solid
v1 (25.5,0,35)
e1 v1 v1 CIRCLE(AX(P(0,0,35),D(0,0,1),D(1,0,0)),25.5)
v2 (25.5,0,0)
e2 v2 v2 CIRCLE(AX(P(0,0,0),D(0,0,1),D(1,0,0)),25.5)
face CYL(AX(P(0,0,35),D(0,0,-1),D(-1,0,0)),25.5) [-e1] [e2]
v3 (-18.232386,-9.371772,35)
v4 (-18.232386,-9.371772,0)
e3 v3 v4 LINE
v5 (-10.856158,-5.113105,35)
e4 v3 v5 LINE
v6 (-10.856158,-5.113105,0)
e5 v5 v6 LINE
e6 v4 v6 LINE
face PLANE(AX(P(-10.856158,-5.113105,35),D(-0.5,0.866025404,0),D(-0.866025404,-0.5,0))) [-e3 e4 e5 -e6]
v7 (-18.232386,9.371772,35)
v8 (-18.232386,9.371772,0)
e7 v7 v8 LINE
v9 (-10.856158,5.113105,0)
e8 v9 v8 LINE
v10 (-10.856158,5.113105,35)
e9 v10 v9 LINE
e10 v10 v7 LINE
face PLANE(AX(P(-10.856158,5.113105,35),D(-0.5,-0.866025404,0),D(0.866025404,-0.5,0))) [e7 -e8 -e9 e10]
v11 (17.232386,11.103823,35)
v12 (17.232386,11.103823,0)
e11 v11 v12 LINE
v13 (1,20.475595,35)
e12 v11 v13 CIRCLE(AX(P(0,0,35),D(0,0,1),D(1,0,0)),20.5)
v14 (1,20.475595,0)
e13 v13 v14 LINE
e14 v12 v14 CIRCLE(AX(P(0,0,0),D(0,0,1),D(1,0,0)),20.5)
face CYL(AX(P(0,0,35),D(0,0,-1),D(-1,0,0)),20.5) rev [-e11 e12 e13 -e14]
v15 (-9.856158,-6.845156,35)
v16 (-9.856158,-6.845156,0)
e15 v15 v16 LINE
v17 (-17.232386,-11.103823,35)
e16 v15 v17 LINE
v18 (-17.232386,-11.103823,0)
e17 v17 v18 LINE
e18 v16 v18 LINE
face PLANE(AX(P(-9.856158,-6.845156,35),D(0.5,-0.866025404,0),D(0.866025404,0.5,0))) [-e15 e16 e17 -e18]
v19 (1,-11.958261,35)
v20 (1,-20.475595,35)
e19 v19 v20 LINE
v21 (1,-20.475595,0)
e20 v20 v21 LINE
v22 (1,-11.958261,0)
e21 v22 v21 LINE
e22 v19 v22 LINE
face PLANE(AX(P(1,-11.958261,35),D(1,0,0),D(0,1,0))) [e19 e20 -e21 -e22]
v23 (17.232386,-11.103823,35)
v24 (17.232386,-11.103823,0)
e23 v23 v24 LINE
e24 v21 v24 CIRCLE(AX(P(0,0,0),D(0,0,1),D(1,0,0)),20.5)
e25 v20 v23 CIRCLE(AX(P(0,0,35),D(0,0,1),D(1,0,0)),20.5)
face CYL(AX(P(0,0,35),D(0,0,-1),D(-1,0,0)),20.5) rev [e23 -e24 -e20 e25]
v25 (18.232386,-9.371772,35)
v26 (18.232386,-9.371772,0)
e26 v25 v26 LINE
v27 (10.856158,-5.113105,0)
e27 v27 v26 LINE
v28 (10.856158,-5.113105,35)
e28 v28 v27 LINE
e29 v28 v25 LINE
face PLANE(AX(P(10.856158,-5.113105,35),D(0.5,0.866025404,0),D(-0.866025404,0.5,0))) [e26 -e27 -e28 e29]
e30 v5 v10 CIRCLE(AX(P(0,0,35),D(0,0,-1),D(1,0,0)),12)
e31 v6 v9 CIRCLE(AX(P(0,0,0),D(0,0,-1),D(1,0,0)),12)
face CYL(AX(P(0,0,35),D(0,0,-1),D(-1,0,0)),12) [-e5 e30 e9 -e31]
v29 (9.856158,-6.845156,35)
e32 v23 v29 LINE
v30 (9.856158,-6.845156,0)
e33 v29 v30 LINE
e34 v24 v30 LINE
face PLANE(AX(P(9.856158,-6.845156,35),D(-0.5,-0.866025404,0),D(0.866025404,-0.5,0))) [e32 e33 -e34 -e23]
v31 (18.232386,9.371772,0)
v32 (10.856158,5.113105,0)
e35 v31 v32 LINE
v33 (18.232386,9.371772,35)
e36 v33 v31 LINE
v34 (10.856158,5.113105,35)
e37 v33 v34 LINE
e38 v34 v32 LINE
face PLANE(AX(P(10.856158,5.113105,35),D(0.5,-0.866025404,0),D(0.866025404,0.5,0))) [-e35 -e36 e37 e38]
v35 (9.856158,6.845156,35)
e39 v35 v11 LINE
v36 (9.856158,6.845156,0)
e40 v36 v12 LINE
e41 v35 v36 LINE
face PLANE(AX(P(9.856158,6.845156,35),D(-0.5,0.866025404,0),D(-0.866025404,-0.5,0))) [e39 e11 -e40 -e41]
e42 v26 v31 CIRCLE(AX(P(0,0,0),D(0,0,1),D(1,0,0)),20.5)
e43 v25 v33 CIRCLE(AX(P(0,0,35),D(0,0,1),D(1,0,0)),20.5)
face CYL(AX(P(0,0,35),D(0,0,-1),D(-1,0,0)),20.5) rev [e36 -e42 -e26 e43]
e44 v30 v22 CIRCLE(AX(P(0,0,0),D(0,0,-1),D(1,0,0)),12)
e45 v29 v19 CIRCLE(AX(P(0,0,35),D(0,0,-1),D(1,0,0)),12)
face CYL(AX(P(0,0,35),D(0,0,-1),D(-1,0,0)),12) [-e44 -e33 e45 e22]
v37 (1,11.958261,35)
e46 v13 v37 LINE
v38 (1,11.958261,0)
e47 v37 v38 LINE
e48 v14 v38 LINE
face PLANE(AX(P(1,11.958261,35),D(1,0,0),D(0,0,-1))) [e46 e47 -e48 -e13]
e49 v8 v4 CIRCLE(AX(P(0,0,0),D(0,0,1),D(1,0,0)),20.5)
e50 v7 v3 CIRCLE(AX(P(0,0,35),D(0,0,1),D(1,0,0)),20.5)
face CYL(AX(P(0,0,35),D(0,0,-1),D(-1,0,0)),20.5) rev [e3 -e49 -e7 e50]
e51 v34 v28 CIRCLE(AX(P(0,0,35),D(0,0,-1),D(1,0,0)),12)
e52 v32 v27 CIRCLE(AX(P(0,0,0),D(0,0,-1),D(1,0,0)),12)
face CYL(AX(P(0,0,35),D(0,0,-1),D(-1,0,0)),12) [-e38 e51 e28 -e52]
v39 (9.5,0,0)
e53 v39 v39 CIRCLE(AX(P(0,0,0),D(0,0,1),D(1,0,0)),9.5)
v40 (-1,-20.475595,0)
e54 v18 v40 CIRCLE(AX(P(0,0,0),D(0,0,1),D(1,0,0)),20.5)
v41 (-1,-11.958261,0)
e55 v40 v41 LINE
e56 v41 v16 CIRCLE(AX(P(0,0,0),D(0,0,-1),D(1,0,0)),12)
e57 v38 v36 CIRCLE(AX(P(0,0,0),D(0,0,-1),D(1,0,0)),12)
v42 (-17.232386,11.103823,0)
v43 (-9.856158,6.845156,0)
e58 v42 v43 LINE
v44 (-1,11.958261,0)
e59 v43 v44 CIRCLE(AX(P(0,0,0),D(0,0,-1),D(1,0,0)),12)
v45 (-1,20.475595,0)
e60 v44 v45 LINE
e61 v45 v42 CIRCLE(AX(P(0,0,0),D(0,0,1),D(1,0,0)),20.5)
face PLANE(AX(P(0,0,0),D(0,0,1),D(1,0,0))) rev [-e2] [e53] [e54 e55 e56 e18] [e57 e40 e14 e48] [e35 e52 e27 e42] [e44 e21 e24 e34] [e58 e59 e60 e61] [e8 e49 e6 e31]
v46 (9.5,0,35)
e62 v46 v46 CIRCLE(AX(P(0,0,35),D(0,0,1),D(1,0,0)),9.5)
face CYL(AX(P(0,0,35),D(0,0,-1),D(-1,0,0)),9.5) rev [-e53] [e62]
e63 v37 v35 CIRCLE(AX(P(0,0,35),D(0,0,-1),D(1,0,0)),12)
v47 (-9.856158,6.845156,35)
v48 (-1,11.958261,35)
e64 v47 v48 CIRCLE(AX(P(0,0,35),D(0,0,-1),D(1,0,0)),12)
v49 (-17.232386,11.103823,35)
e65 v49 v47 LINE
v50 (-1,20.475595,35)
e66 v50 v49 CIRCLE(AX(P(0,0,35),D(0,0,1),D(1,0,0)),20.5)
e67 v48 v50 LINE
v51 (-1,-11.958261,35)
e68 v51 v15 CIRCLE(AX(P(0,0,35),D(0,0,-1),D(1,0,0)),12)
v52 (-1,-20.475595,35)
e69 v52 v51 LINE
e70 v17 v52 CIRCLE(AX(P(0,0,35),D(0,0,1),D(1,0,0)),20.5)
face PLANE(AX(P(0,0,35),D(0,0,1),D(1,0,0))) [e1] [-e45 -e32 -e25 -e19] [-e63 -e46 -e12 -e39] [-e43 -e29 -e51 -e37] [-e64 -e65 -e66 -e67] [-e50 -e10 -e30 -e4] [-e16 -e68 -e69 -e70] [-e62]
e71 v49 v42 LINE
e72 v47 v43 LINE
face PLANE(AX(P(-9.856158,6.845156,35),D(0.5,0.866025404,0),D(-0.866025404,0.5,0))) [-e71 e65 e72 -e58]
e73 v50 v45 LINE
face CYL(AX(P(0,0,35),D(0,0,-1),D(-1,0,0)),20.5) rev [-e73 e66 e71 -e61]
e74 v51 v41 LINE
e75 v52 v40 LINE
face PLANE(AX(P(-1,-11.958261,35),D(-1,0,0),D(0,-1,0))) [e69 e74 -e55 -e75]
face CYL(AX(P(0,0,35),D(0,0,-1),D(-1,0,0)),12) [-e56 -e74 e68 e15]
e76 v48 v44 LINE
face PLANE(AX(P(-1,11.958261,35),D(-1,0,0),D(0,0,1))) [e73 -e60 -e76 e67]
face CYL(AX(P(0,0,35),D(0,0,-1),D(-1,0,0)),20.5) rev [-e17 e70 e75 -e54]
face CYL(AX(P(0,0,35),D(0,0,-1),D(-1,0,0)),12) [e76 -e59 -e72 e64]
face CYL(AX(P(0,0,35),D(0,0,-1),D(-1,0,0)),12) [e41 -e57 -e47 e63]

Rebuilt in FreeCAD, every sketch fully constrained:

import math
import FreeCAD as App
import Part
import Sketcher

V = App.Vector
Q = App.Units.Quantity

doc = App.newDocument("Part")
params = doc.addObject("Spreadsheet::Sheet", "Params")
for row, (alias, value) in enumerate([
    ("sketch1_diameter", "51 mm"),
    ("sketch1_diameter2", "19 mm"),
    ("sketch1_radius", "12 mm"),
    ("sketch1_radius2", "20.5 mm"),
    ("pad1_length", "35 mm"),
], start=1):
    params.set(f"A{row}", alias)
    params.set(f"B{row}", "=" + value)
    params.setAlias(f"B{row}", alias)

body = doc.addObject("PartDesign::Body", "Body")

sketch1 = doc.addObject("Sketcher::SketchObject", "Sketch")
body.addObject(sketch1)
sketch1.AttachmentSupport = (doc.XY_Plane, [""])
sketch1.MapMode = "FlatFace"
sketch1.addGeometry([
    Part.Circle(V(0, 0, 0), V(0, 0, 1), 26),
    Part.ArcOfCircle(Part.Circle(V(0, 0, 0), V(0, 0, 1), 12), math.radians(-145), math.radians(-95)),
    Part.LineSegment(V(-1, -12, 0), V(-1, -20, 0)),
    Part.ArcOfCircle(Part.Circle(V(0, 0, 0), V(0, 0, 1), 20), math.radians(-147), math.radians(-93)),
    Part.LineSegment(V(-17, -11, 0), V(-10, -7, 0)),
    Part.ArcOfCircle(Part.Circle(V(0, 0, 0), V(0, 0, 1), 12), math.radians(-85), math.radians(-35)),
    Part.LineSegment(V(10, -7, 0), V(17, -11, 0)),
    Part.ArcOfCircle(Part.Circle(V(0, 0, 0), V(0, 0, 1), 20), math.radians(-87), math.radians(-33)),
    Part.LineSegment(V(1, -20, 0), V(1, -12, 0)),
    Part.ArcOfCircle(Part.Circle(V(0, 0, 0), V(0, 0, 1), 12), math.radians(155), math.radians(205)),
    Part.LineSegment(V(-11, -5, 0), V(-18, -9, 0)),
    Part.ArcOfCircle(Part.Circle(V(0, 0, 0), V(0, 0, 1), 20), math.radians(153), math.radians(207)),
    Part.LineSegment(V(-18, 9, 0), V(-11, 5, 0)),
    Part.LineSegment(V(-1, 20, 0), V(-1, 12, 0)),
    Part.ArcOfCircle(Part.Circle(V(0, 0, 0), V(0, 0, 1), 12), math.radians(95), math.radians(145)),
    Part.LineSegment(V(-10, 7, 0), V(-17, 11, 0)),
    Part.ArcOfCircle(Part.Circle(V(0, 0, 0), V(0, 0, 1), 20), math.radians(93), math.radians(147)),
    Part.Circle(V(0, 0, 0), V(0, 0, 1), 10),
    Part.ArcOfCircle(Part.Circle(V(0, 0, 0), V(0, 0, 1), 12), math.radians(-25), math.radians(25)),
    Part.LineSegment(V(11, 5, 0), V(18, 9, 0)),
    Part.ArcOfCircle(Part.Circle(V(0, 0, 0), V(0, 0, 1), 20), math.radians(-27), math.radians(27)),
    Part.LineSegment(V(18, -9, 0), V(11, -5, 0)),
    Part.LineSegment(V(17, 11, 0), V(10, 7, 0)),
    Part.ArcOfCircle(Part.Circle(V(0, 0, 0), V(0, 0, 1), 12), math.radians(35), math.radians(85)),
    Part.LineSegment(V(1, 12, 0), V(1, 20, 0)),
    Part.ArcOfCircle(Part.Circle(V(0, 0, 0), V(0, 0, 1), 20), math.radians(33), math.radians(87)),
], False)
sketch1.addConstraint([
    Sketcher.Constraint("Coincident", 1, 2, 2, 1),
    Sketcher.Constraint("Coincident", 2, 2, 3, 2),
    Sketcher.Constraint("Coincident", 3, 1, 4, 1),
    Sketcher.Constraint("Coincident", 4, 2, 1, 1),
    Sketcher.Constraint("Coincident", 5, 2, 6, 1),
    Sketcher.Constraint("Coincident", 6, 2, 7, 2),
    Sketcher.Constraint("Coincident", 7, 1, 8, 1),
    Sketcher.Constraint("Coincident", 8, 2, 5, 1),
    Sketcher.Constraint("Coincident", 9, 2, 10, 1),
    Sketcher.Constraint("Coincident", 10, 2, 11, 2),
    Sketcher.Constraint("Coincident", 11, 1, 12, 1),
    Sketcher.Constraint("Coincident", 12, 2, 9, 1),
    Sketcher.Constraint("Coincident", 13, 2, 14, 1),
    Sketcher.Constraint("Coincident", 14, 2, 15, 1),
    Sketcher.Constraint("Coincident", 15, 2, 16, 2),
    Sketcher.Constraint("Coincident", 16, 1, 13, 1),
    Sketcher.Constraint("Coincident", 18, 2, 19, 1),
    Sketcher.Constraint("Coincident", 19, 2, 20, 2),
    Sketcher.Constraint("Coincident", 20, 1, 21, 1),
    Sketcher.Constraint("Coincident", 21, 2, 18, 1),
    Sketcher.Constraint("Coincident", 22, 2, 23, 1),
    Sketcher.Constraint("Coincident", 23, 2, 24, 1),
    Sketcher.Constraint("Coincident", 24, 2, 25, 2),
    Sketcher.Constraint("Coincident", 25, 1, 22, 1),
    Sketcher.Constraint("Vertical", 2),
    Sketcher.Constraint("Vertical", 8),
    Sketcher.Constraint("Vertical", 13),
    Sketcher.Constraint("Vertical", 24),
    Sketcher.Constraint("Coincident", 0, 3, -1, 1),
    Sketcher.Constraint("Coincident", 1, 3, -1, 1),
    Sketcher.Constraint("Coincident", 3, 3, -1, 1),
    Sketcher.Constraint("Coincident", 5, 3, -1, 1),
    Sketcher.Constraint("Coincident", 7, 3, -1, 1),
    Sketcher.Constraint("Coincident", 9, 3, -1, 1),
    Sketcher.Constraint("Coincident", 11, 3, -1, 1),
    Sketcher.Constraint("Coincident", 14, 3, -1, 1),
    Sketcher.Constraint("Coincident", 16, 3, -1, 1),
    Sketcher.Constraint("Coincident", 17, 3, -1, 1),
    Sketcher.Constraint("Coincident", 18, 3, -1, 1),
    Sketcher.Constraint("Coincident", 20, 3, -1, 1),
    Sketcher.Constraint("Coincident", 23, 3, -1, 1),
    Sketcher.Constraint("Coincident", 25, 3, -1, 1),
    Sketcher.Constraint("Equal", 1, 5),
    Sketcher.Constraint("Equal", 3, 7),
    Sketcher.Constraint("Equal", 5, 9),
    Sketcher.Constraint("Equal", 7, 11),
    Sketcher.Constraint("Equal", 9, 14),
    Sketcher.Constraint("Equal", 11, 16),
    Sketcher.Constraint("Equal", 14, 18),
    Sketcher.Constraint("Equal", 16, 20),
    Sketcher.Constraint("Equal", 18, 23),
    Sketcher.Constraint("Equal", 20, 25),
    Sketcher.Constraint("Parallel", 4, 10),
    Sketcher.Constraint("Parallel", 6, 12),
    Sketcher.Constraint("Parallel", 12, 15),
    Sketcher.Constraint("Parallel", 10, 19),
    Sketcher.Constraint("Parallel", 15, 21),
    Sketcher.Constraint("Parallel", 19, 22),
    Sketcher.Constraint("Horizontal", 4, 2, 5, 2),
    Sketcher.Constraint("Horizontal", 3, 1, 6, 2),
    Sketcher.Constraint("Horizontal", 2, 2, 7, 1),
    Sketcher.Constraint("Horizontal", 12, 2, 18, 2),
    Sketcher.Constraint("Horizontal", 10, 2, 20, 1),
    Sketcher.Constraint("Horizontal", 14, 2, 22, 2),
    Sketcher.Constraint("Horizontal", 13, 2, 23, 2),
    Sketcher.Constraint("Vertical", 10, 2, 11, 1),
    Sketcher.Constraint("Vertical", 2, 2, 13, 2),
    Sketcher.Constraint("Vertical", 4, 2, 14, 2),
    Sketcher.Constraint("Equal", 6, 10),
    Sketcher.Constraint("Diameter", 0, 51.0),
    Sketcher.Constraint("Diameter", 17, 19.0),
    Sketcher.Constraint("Radius", 1, 12.0),
    Sketcher.Constraint("Radius", 3, 20.5),
    Sketcher.Constraint("Angle", 4, Q("30 deg")),
    Sketcher.Constraint("DistanceX", 1, 2, -1, 1, 1.0),
    Sketcher.Constraint("DistanceX", 9, 2, 4, 2, 1.0),
])
sketch1.setExpression("Constraints[69]", "Params.sketch1_diameter")
sketch1.setExpression("Constraints[70]", "Params.sketch1_diameter2")
sketch1.setExpression("Constraints[71]", "Params.sketch1_radius")
sketch1.setExpression("Constraints[72]", "Params.sketch1_radius2")
pad1 = doc.addObject("PartDesign::Pad", "Pad")
body.addObject(pad1)
pad1.Profile = sketch1
pad1.setExpression("Length", "Params.pad1_length")

doc.recompute()
